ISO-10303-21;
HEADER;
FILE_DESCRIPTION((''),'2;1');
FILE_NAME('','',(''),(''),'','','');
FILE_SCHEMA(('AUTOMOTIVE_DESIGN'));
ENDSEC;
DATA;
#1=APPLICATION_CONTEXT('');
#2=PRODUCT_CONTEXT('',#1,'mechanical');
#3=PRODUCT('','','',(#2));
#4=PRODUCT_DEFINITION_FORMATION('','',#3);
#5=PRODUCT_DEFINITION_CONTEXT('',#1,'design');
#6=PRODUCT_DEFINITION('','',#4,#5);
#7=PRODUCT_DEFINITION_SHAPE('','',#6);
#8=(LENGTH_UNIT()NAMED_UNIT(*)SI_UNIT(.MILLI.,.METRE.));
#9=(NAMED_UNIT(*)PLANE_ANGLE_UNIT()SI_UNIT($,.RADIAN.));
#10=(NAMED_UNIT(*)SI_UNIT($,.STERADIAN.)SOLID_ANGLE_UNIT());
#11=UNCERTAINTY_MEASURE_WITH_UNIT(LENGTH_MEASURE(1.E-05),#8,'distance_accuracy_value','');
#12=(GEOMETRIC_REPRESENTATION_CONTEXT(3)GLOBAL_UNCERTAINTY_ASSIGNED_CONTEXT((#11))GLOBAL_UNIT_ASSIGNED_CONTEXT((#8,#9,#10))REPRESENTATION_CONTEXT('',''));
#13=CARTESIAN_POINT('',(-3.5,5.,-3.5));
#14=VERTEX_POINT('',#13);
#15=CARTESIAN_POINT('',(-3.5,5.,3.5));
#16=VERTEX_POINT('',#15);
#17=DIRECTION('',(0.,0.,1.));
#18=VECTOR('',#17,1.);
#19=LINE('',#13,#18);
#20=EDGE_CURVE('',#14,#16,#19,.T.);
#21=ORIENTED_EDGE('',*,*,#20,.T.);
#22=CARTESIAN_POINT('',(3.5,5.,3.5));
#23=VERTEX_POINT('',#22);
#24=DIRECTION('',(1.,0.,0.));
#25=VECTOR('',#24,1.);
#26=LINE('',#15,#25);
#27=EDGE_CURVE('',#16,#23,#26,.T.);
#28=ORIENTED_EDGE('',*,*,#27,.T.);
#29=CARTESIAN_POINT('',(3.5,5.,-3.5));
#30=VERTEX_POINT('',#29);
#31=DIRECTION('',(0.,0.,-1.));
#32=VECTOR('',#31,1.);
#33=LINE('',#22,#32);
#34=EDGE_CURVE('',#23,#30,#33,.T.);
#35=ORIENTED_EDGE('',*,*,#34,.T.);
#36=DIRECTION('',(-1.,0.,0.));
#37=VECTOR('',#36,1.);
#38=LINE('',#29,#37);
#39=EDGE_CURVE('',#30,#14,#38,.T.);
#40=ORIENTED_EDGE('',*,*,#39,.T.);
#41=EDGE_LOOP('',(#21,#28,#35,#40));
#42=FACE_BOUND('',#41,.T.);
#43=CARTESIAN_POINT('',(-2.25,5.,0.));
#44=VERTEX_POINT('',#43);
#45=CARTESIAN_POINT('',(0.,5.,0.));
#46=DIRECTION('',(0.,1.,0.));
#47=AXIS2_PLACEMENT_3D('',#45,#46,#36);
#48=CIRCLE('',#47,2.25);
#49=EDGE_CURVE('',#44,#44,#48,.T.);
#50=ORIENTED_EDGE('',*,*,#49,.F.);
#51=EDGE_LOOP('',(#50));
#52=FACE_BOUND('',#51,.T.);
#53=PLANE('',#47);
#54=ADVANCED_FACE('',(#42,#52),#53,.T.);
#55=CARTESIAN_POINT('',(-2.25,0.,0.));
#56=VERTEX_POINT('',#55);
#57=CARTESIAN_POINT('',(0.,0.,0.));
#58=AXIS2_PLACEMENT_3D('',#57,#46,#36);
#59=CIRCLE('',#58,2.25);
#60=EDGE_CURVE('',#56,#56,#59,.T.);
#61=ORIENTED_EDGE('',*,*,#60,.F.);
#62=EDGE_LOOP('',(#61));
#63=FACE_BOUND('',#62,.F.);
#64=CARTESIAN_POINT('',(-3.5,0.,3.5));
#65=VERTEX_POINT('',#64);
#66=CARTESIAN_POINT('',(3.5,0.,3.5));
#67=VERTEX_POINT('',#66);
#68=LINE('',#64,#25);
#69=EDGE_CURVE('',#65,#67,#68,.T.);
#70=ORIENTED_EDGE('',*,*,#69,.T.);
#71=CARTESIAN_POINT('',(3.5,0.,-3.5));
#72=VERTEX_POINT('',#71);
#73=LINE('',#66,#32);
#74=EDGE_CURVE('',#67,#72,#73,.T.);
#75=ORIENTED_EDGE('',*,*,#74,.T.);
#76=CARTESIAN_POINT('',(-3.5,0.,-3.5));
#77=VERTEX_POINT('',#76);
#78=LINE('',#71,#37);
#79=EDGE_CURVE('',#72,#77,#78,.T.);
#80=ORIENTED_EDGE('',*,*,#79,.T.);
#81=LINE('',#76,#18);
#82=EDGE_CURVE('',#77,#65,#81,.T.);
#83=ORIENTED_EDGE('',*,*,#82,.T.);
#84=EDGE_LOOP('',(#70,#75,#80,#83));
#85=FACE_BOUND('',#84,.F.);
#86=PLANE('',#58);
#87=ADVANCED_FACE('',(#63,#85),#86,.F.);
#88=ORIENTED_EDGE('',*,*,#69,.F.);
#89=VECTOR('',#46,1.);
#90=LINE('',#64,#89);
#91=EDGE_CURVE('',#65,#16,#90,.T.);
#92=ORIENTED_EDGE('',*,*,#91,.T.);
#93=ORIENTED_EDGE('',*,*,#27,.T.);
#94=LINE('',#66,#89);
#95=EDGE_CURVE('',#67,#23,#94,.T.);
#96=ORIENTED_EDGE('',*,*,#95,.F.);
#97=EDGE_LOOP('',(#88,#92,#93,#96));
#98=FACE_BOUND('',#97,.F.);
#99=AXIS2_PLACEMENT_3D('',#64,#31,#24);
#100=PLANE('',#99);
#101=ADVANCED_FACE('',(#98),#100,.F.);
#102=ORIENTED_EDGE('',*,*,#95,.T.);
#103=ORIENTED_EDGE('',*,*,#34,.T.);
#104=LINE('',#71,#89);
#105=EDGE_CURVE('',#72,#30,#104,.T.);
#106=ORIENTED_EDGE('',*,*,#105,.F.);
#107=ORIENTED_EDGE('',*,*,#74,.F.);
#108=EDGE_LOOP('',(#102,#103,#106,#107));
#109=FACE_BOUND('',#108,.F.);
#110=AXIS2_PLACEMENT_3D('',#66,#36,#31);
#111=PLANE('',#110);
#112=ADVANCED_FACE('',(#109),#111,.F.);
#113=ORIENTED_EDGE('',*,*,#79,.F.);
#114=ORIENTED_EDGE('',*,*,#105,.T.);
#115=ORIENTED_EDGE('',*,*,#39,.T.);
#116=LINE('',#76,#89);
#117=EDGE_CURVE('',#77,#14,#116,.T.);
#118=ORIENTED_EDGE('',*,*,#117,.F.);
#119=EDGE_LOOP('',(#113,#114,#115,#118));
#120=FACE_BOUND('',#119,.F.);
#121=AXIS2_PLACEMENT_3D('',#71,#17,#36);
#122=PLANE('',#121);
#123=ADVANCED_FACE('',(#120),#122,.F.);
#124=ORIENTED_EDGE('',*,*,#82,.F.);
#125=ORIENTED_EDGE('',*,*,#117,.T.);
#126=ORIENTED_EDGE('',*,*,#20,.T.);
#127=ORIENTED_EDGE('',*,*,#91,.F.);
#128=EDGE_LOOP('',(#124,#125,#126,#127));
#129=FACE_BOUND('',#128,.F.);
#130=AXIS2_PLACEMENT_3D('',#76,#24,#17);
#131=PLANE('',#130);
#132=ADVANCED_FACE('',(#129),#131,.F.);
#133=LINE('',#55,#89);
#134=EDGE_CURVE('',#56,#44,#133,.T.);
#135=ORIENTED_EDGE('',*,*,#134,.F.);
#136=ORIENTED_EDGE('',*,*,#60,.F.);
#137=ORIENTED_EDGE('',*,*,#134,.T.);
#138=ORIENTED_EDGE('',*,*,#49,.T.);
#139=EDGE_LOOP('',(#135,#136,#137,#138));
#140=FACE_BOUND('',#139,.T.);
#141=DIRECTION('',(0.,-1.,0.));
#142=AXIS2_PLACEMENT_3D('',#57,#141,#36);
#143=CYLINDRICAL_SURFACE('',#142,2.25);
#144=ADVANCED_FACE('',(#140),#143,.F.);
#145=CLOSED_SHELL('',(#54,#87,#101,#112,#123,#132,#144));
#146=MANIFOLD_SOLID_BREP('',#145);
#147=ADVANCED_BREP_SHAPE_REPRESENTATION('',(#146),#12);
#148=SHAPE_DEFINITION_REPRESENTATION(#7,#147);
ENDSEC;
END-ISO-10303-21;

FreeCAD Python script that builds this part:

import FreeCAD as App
import Part
import Sketcher

doc = App.newDocument("Part")
body = doc.addObject("PartDesign::Body", "Body")

# Sketch on XZ plane
sketch1 = doc.addObject("Sketcher::SketchObject", "Sketch")
body.addObject(sketch1)
sketch1.AttachmentSupport = (doc.XZ_Plane, [""])
sketch1.MapMode = "FlatFace"
sketch1.addGeometry(Part.LineSegment(App.Vector(-3.5, -3.5, 0), App.Vector(-3.5, 3.5, 0)), False)
sketch1.addGeometry(Part.LineSegment(App.Vector(-3.5, 3.5, 0), App.Vector(3.5, 3.5, 0)), False)
sketch1.addGeometry(Part.LineSegment(App.Vector(3.5, 3.5, 0), App.Vector(3.5, -3.5, 0)), False)
sketch1.addGeometry(Part.LineSegment(App.Vector(3.5, -3.5, 0), App.Vector(-3.5, -3.5, 0)), False)
sketch1.addGeometry(Part.Circle(App.Vector(0, 0, 0), App.Vector(0, 0, 1), 2.2), False)
sketch1.addConstraint(Sketcher.Constraint("Coincident", 0, 2, 1, 1))
sketch1.addConstraint(Sketcher.Constraint("Coincident", 1, 2, 2, 1))
sketch1.addConstraint(Sketcher.Constraint("Coincident", 2, 2, 3, 1))
sketch1.addConstraint(Sketcher.Constraint("Coincident", 3, 2, 0, 1))
sketch1.addConstraint(Sketcher.Constraint("Vertical", 0))
sketch1.addConstraint(Sketcher.Constraint("Horizontal", 1))
sketch1.addConstraint(Sketcher.Constraint("Vertical", 2))
sketch1.addConstraint(Sketcher.Constraint("Horizontal", 3))
sketch1.addConstraint(Sketcher.Constraint("Coincident", 4, 3, -1, 1))
sketch1.addConstraint(Sketcher.Constraint("Symmetric", 0, 2, 2, 2, -1, 1))
sketch1.addConstraint(Sketcher.Constraint("Equal", 3, 0))
sketch1.addConstraint(Sketcher.Constraint("Diameter", 4, 4.5))
sketch1.addConstraint(Sketcher.Constraint("DistanceX", 1, 1, 1, 2, 7.0))
pad1 = doc.addObject("PartDesign::Pad", "Pad")
body.addObject(pad1)
pad1.Profile = sketch1
pad1.Length = 5
pad1.Reversed = True

doc.recompute()
